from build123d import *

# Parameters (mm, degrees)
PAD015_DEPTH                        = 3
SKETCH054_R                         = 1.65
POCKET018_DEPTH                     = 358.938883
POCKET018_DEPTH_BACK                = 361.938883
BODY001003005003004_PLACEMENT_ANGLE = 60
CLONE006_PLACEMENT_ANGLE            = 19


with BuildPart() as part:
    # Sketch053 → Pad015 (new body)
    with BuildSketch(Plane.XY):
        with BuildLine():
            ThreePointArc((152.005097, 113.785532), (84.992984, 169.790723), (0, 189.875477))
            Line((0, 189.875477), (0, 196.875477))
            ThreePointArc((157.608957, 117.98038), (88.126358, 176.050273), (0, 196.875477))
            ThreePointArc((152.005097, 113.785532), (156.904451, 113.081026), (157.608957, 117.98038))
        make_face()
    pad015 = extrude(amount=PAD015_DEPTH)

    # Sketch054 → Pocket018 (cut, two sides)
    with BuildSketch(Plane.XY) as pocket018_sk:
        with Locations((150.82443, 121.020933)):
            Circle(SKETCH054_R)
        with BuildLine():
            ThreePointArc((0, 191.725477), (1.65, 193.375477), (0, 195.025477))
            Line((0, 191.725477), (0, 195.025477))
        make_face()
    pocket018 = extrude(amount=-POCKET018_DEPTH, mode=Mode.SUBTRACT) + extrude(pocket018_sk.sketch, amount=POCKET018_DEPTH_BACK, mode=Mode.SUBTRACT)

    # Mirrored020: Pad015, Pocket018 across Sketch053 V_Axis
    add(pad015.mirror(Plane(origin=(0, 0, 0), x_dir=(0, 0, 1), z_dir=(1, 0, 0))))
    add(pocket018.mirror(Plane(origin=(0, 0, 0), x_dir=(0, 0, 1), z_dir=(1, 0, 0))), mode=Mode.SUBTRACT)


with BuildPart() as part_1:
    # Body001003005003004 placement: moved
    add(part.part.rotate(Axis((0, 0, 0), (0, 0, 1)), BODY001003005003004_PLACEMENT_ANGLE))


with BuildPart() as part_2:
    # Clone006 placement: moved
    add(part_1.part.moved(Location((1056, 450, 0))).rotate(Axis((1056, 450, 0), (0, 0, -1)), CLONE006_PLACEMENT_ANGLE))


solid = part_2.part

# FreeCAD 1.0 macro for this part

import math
import FreeCAD as App
import Part
import Sketcher
from FreeCAD import Vector

doc = App.newDocument("Part")
body = doc.addObject("PartDesign::Body", "Body")

# Sketch on XY plane
sketch1 = body.newObject("Sketcher::SketchObject", "Sketch")
sketch1.AttachmentSupport = (doc.getObject("XY_Plane"), [""])
sketch1.MapMode = "FlatFace"
sketch1.addGeometry([
    Part.ArcOfCircle(Part.Circle(Vector(0, 0, 0), Vector(0, 0, 1), 189.9), math.radians(37), math.radians(90)),
    Part.ArcOfCircle(Part.Circle(Vector(154.8, 115.9, 0), Vector(0, 0, 1), 3.5), math.radians(-143), math.radians(37)),
    Part.ArcOfCircle(Part.Circle(Vector(0, 0, 0), Vector(0, 0, 1), 196.9), math.radians(37), math.radians(90)),
    Part.LineSegment(Vector(0, 196.9, 0), Vector(0, 189.9, 0)),
], False)
sketch1.addConstraint([
    Sketcher.Constraint("Tangent", 0, 1, 1, 1),
    Sketcher.Constraint("Tangent", 1, 2, 2, 1),
    Sketcher.Constraint("Coincident", 2, 2, 3, 1),
    Sketcher.Constraint("Coincident", 3, 2, 0, 2),
    Sketcher.Constraint("Vertical", 3),
    Sketcher.Constraint("Coincident", 0, 3, -1, 1),
    Sketcher.Constraint("Coincident", 2, 3, -1, 1),
    Sketcher.Constraint("PointOnObject", 2, 2, -2),
    Sketcher.Constraint("Radius", 1, 3.5),
    Sketcher.Constraint("Radius", 0, 189.875473),
    Sketcher.Constraint("DistanceY", -1, 1, 1, 2, 117.98038),
])
pad1 = body.newObject("PartDesign::Pad", "Pad")
pad1.Profile = sketch1
pad1.Length = 3

# Sketch on XY plane
sketch2 = body.newObject("Sketcher::SketchObject", "Sketch001")
sketch2.AttachmentSupport = (doc.getObject("XY_Plane"), [""])
sketch2.MapMode = "FlatFace"
sketch2.addGeometry([
    Part.Circle(Vector(150.8, 121, 0), Vector(0, 0, 1), 1.6),
    Part.ArcOfCircle(Part.Circle(Vector(0, 193.4, 0), Vector(0, 0, 1), 1.6), math.radians(-90), math.radians(90)),
    Part.LineSegment(Vector(0, 195, 0), Vector(0, 191.7, 0)),
], False)
sketch2.addConstraint([
    Sketcher.Constraint("Coincident", 1, 1, 2, 2),
    Sketcher.Constraint("Coincident", 2, 1, 1, 2),
    Sketcher.Constraint("Vertical", 2),
    Sketcher.Constraint("Equal", 0, 1),
    Sketcher.Constraint("PointOnObject", 1, 3, -2),
    Sketcher.Constraint("PointOnObject", 1, 1, -2),
    Sketcher.Constraint("Diameter", 0, 3.3),
    Sketcher.Constraint("DistanceX", -1, 1, 0, 3, 150.82443),
    Sketcher.Constraint("DistanceY", -1, 1, 0, 3, 121.020933),
    Sketcher.Constraint("DistanceY", -1, 1, 1, 3, 193.375477),
])
pocket1 = body.newObject("PartDesign::Pocket", "Pocket")
pocket1.Profile = sketch2
pocket1.Type = "ThroughAll"
pocket1.Midplane = True
doc.recompute()

mirrored = body.newObject("PartDesign::Mirrored", "Mirrored")
mirrored.Originals = [pad1, pocket1]
mirrored.MirrorPlane = (doc.getObject("YZ_Plane"), [""])
body.Tip = mirrored
body2 = doc.addObject("PartDesign::Body", "Body001")
doc.recompute()

body.Placement = App.Placement(Vector(0, 0, 0), App.Rotation(Vector(0, 0, 1), 60))
boolean = body2.newObject("PartDesign::Boolean", "Boolean")
boolean.Type = "Fuse"
boolean.addObjects([body])
body3 = doc.addObject("PartDesign::Body", "Body002")
doc.recompute()

body2.Placement = App.Placement(Vector(1056, 450, 0), App.Rotation(Vector(0, 0, -1), 19))
boolean2 = body3.newObject("PartDesign::Boolean", "Boolean001")
boolean2.Type = "Fuse"
boolean2.addObjects([body2])

doc.recompute()
